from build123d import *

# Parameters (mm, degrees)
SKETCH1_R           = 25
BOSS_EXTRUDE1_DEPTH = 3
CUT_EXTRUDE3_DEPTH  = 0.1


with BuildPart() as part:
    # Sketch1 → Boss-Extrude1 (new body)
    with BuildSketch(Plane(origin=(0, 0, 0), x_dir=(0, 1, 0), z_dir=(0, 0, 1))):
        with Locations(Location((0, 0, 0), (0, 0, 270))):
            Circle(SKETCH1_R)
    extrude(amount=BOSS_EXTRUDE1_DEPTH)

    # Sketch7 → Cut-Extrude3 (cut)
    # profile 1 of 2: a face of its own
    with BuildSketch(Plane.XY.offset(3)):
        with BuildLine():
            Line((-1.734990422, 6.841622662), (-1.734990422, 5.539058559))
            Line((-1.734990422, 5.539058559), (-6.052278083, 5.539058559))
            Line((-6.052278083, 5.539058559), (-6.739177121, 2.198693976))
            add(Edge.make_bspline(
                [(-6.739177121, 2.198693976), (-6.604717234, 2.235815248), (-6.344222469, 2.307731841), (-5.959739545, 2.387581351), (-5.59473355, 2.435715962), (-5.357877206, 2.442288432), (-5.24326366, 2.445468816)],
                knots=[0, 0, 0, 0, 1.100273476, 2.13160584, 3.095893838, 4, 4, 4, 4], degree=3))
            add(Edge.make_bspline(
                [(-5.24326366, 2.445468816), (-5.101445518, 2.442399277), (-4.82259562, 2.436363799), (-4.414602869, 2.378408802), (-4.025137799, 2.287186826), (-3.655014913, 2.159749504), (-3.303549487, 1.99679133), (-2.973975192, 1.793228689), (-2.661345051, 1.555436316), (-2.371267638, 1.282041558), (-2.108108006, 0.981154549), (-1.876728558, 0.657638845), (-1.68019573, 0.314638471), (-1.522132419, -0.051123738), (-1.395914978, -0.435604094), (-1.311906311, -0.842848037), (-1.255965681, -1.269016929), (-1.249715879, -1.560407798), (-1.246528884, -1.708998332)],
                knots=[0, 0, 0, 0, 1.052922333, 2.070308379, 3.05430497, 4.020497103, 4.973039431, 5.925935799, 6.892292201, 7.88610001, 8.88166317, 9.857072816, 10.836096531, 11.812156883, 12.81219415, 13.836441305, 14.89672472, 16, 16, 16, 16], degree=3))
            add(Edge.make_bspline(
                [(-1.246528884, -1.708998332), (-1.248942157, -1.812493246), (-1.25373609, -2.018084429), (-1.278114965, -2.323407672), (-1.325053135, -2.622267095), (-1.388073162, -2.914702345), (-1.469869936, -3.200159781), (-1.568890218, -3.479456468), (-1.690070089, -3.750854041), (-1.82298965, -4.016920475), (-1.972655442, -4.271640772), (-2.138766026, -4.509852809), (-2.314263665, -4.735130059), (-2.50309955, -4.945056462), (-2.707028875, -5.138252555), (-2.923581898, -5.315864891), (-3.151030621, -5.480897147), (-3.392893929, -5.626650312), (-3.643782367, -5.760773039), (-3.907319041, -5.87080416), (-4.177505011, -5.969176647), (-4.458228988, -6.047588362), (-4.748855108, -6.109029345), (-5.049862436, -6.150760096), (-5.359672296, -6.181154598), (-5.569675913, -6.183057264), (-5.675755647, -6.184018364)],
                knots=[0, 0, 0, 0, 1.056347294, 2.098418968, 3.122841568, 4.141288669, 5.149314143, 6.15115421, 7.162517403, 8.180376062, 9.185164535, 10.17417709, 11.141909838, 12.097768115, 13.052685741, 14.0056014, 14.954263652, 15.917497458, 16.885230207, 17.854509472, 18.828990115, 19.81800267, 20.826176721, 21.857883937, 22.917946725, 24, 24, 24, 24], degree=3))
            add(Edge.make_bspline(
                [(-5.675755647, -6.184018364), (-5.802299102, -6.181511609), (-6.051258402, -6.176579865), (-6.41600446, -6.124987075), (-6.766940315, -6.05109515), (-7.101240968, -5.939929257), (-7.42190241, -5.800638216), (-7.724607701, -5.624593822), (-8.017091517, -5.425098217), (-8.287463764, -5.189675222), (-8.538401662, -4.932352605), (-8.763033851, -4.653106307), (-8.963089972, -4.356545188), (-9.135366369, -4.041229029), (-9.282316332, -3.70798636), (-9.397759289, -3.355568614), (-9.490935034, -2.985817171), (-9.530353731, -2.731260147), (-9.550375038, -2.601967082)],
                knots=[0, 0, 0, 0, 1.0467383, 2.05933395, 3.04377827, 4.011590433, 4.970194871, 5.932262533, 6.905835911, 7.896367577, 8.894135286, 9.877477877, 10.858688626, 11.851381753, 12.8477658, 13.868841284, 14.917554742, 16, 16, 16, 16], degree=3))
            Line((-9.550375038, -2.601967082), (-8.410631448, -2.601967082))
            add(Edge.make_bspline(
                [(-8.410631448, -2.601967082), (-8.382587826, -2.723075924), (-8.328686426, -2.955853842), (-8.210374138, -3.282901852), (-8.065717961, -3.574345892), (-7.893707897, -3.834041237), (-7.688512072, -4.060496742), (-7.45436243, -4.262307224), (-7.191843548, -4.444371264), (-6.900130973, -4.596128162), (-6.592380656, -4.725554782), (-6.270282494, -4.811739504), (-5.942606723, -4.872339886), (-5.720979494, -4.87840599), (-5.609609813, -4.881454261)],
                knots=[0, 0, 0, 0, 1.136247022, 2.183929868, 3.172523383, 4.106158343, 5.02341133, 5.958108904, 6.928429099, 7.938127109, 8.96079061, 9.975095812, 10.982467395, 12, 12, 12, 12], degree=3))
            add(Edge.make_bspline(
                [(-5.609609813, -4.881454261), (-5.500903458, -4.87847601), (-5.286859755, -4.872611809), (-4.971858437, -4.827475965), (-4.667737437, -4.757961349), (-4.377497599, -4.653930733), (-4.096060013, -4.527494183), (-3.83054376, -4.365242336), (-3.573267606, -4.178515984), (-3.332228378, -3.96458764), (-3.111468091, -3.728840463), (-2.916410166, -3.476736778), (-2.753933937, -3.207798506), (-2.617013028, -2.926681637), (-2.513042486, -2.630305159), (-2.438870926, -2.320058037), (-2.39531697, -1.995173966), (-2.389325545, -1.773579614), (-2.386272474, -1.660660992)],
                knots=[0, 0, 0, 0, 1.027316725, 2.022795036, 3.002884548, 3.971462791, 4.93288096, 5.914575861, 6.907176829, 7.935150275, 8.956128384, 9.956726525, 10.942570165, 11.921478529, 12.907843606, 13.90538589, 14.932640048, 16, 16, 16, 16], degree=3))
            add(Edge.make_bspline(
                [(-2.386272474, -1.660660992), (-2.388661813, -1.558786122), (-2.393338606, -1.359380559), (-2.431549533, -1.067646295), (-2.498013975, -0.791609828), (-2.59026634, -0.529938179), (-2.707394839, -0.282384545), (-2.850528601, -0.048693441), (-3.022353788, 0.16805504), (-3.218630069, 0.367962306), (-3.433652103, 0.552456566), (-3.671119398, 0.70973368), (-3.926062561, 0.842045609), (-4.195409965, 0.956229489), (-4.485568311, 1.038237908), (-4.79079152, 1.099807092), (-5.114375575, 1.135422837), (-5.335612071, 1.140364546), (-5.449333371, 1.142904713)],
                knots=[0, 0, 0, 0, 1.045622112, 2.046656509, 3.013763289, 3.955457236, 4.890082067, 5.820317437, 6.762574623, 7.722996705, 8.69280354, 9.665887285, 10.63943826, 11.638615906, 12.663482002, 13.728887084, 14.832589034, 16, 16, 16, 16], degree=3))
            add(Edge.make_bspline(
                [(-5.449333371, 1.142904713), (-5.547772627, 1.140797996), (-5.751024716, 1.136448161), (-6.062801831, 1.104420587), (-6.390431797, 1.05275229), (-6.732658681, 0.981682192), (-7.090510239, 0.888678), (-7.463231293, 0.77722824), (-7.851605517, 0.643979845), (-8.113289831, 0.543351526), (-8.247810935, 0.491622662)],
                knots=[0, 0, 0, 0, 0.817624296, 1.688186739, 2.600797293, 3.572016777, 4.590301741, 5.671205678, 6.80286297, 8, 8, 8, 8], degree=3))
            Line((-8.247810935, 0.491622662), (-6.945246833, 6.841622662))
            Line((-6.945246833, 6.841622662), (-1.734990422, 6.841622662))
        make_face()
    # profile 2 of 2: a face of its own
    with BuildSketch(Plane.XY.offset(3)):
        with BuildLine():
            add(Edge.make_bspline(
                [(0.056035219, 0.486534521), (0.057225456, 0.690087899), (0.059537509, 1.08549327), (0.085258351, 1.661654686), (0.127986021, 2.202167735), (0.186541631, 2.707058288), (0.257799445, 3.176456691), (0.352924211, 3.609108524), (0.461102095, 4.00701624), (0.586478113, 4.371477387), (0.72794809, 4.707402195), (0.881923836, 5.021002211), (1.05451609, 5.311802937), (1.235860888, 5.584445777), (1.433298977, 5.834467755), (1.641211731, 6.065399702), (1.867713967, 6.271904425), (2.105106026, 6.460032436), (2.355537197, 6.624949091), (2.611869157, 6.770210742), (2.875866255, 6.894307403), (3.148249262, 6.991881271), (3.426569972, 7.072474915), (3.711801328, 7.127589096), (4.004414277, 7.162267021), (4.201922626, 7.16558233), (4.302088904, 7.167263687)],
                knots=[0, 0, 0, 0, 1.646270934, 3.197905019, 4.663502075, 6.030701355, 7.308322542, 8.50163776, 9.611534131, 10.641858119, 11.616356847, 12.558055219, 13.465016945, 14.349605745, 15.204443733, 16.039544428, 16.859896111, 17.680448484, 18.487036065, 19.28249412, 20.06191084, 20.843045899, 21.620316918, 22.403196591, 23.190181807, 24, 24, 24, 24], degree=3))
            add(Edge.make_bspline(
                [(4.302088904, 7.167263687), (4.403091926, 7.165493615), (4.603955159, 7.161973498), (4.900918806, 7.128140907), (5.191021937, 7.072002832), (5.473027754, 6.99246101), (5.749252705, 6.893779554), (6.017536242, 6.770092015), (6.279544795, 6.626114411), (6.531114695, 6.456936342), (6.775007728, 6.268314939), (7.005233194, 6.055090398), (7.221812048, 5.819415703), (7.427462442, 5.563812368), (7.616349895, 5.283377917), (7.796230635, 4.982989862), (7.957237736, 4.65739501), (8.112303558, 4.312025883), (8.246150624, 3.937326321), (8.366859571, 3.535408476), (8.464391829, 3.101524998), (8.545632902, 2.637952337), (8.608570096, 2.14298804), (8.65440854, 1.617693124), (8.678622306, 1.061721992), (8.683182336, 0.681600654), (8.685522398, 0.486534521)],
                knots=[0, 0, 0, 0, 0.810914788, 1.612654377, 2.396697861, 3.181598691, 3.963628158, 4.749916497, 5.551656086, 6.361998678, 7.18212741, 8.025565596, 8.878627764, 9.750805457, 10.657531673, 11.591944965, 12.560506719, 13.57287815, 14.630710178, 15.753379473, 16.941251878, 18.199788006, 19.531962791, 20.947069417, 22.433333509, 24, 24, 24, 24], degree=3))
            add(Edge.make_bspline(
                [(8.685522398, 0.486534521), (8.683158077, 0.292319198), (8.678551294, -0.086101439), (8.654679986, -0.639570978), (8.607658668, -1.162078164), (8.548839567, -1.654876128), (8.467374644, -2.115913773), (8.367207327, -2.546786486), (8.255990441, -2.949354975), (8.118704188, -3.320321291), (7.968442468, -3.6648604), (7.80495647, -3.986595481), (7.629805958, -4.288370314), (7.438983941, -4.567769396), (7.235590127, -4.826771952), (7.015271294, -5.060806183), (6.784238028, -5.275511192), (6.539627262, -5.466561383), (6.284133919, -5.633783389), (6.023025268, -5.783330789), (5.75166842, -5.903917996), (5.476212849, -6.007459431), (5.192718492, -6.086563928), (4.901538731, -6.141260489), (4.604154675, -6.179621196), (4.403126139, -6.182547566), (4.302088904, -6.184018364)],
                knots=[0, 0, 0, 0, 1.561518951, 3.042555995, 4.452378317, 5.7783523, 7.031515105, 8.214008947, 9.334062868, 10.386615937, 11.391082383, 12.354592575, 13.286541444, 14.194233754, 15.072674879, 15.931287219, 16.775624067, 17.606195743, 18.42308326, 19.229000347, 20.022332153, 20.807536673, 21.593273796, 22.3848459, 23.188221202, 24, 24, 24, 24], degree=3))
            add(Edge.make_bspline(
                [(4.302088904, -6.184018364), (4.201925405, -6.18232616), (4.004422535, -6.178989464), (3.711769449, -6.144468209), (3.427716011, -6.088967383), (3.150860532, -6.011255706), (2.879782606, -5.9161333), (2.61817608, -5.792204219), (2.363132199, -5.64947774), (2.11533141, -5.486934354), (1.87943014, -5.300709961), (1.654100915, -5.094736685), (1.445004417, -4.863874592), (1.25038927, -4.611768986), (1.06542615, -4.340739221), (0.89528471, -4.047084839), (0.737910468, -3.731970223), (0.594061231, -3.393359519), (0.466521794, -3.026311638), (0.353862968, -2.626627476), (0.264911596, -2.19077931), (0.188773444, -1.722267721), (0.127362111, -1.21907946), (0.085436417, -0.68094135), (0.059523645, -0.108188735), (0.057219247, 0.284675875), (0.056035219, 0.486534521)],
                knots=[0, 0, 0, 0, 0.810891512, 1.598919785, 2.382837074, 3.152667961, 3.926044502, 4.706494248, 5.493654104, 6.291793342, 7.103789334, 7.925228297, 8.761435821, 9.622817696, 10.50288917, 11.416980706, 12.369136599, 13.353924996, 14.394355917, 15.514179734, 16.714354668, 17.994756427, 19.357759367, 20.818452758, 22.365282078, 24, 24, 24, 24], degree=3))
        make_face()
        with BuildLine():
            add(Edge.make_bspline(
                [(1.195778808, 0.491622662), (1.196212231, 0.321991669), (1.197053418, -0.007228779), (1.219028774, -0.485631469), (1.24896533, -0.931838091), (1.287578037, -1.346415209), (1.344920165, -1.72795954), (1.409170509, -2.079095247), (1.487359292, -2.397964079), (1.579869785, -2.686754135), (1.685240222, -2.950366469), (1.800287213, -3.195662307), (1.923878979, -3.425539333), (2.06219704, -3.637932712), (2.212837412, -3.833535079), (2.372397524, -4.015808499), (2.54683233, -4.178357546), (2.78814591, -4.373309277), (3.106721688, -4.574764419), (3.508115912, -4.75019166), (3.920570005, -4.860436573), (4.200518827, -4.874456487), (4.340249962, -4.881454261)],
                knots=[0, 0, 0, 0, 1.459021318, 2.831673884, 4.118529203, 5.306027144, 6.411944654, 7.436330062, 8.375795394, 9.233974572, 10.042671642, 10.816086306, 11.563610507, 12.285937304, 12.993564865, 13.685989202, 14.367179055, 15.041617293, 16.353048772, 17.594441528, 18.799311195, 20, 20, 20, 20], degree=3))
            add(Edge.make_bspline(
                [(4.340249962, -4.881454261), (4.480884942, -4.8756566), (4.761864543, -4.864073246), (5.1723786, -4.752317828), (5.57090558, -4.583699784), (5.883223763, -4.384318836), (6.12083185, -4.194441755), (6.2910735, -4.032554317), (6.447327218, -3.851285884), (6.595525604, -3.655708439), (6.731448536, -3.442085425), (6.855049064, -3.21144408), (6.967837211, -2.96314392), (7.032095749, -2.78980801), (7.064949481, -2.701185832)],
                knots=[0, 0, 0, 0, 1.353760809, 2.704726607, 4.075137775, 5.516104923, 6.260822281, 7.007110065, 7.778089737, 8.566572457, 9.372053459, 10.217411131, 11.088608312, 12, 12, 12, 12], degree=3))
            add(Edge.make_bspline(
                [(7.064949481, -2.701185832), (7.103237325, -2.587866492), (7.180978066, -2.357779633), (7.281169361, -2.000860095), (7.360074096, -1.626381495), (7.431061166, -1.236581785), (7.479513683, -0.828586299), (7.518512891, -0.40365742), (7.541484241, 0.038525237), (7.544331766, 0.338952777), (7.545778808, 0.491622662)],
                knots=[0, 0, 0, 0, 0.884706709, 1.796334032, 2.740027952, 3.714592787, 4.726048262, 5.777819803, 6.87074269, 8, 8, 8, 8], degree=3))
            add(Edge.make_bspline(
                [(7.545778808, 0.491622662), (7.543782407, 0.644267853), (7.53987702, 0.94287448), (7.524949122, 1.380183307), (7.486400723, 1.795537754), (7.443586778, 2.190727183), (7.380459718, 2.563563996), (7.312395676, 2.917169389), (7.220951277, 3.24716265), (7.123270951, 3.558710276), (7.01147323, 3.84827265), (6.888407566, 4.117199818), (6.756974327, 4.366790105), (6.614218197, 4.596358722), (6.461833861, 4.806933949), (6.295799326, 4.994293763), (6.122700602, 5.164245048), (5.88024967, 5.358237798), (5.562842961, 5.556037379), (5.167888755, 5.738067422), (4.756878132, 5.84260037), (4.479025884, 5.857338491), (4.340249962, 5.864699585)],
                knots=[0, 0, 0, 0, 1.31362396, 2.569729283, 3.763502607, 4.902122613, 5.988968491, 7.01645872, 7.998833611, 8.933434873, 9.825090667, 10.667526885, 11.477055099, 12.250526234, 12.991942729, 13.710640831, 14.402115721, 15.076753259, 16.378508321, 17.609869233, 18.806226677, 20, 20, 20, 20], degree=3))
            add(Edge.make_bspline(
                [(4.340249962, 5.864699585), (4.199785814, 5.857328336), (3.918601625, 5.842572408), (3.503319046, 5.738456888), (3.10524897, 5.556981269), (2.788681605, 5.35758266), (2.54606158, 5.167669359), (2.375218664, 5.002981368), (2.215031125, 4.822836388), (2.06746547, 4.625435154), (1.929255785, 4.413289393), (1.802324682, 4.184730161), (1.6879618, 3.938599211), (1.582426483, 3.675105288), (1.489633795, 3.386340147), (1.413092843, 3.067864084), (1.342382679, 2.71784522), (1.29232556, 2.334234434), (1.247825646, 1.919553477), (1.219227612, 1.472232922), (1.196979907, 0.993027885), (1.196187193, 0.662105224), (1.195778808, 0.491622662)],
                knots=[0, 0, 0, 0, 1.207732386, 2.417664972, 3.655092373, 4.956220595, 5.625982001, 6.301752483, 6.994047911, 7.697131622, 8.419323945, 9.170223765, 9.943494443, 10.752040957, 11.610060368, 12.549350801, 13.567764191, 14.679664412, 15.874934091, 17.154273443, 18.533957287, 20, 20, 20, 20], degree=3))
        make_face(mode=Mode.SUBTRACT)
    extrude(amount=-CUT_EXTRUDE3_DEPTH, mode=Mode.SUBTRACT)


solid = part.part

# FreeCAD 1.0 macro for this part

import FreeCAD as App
import Part
import Sketcher
Q = App.Units.Quantity

doc = App.newDocument("Part")
body = doc.addObject("PartDesign::Body", "Body")

sketch1 = body.newObject("Sketcher::SketchObject", "Sketch")
sketch1.AttachmentSupport = (doc.getObject("XY_Plane"), [""])
sketch1.MapMode = "FlatFace"
sketch1.addGeometry(Part.Circle(App.Vector(0, 0, 0), App.Vector(0, 0, 1), 25), False)
sketch1.addConstraint([
    Sketcher.Constraint("Coincident", 0, 3, -1, 1),
    Sketcher.Constraint("Diameter", 0, Q("50 mm")),
])
pad1 = body.newObject("PartDesign::Pad", "Pad")
pad1.Profile = sketch1
pad1.Length = 3

sketch2 = body.newObject("Sketcher::SketchObject", "Sketch001")
sketch2.AttachmentSupport = (doc.getObject("XY_Plane"), [""])
sketch2.MapMode = "FlatFace"
sketch2.AttachmentOffset = App.Placement(App.Vector(0, 0, 3), App.Rotation())
sketch2.addGeometry([
    Part.LineSegment(App.Vector(-1.73499, 5.539059, 0), App.Vector(-1.73499, 6.841623, 0)),
    Part.LineSegment(App.Vector(-1.73499, 6.841623, 0), App.Vector(-6.945247, 6.841623, 0)),
    Part.LineSegment(App.Vector(-6.945247, 6.841623, 0), App.Vector(-8.247811, 0.491623, 0)),
    Part.BSplineCurve([App.Vector(-5.449333, 1.142905, 0), App.Vector(-5.547773, 1.140798, 0), App.Vector(-5.751025, 1.136448, 0), App.Vector(-6.062802, 1.104421, 0), App.Vector(-6.390432, 1.052752, 0), App.Vector(-6.732659, 0.981682, 0), App.Vector(-7.09051, 0.888678, 0), App.Vector(-7.463231, 0.777228, 0), App.Vector(-7.851606, 0.64398, 0), App.Vector(-8.11329, 0.543352, 0), App.Vector(-8.247811, 0.491623, 0)], [4, 1, 1, 1, 1, 1, 1, 1, 4], [0, 0.817624296, 1.688186739, 2.600797293, 3.572016777, 4.590301741, 5.671205678, 6.80286297, 8], False, 3, [1, 1, 1, 1, 1, 1, 1, 1, 1, 1, 1], False),
    Part.BSplineCurve([App.Vector(-2.386272, -1.660661, 0), App.Vector(-2.388662, -1.558786, 0), App.Vector(-2.393339, -1.359381, 0), App.Vector(-2.43155, -1.067646, 0), App.Vector(-2.498014, -0.79161, 0), App.Vector(-2.590266, -0.529938, 0), App.Vector(-2.707395, -0.282385, 0), App.Vector(-2.850529, -0.048693, 0), App.Vector(-3.022354, 0.168055, 0), App.Vector(-3.21863, 0.367962, 0), App.Vector(-3.433652, 0.552457, 0), App.Vector(-3.671119, 0.709734, 0), App.Vector(-3.926063, 0.842046, 0), App.Vector(-4.19541, 0.956229, 0), App.Vector(-4.485568, 1.038238, 0), App.Vector(-4.790792, 1.099807, 0), App.Vector(-5.114376, 1.135423, 0), App.Vector(-5.335612, 1.140365, 0), App.Vector(-5.449333, 1.142905, 0)], [4, 1, 1, 1, 1, 1, 1, 1, 1, 1, 1, 1, 1, 1, 1, 1, 4], [0, 1.045622112, 2.046656509, 3.013763289, 3.955457236, 4.890082067, 5.820317437, 6.762574623, 7.722996705, 8.69280354, 9.665887285, 10.63943826, 11.638615906, 12.663482002, 13.728887084, 14.832589034, 16], False, 3, [1, 1, 1, 1, 1, 1, 1, 1, 1, 1, 1, 1, 1, 1, 1, 1, 1, 1, 1], False),
    Part.BSplineCurve([App.Vector(-5.60961, -4.881454, 0), App.Vector(-5.500903, -4.878476, 0), App.Vector(-5.28686, -4.872612, 0), App.Vector(-4.971858, -4.827476, 0), App.Vector(-4.667737, -4.757961, 0), App.Vector(-4.377498, -4.653931, 0), App.Vector(-4.09606, -4.527494, 0), App.Vector(-3.830544, -4.365242, 0), App.Vector(-3.573268, -4.178516, 0), App.Vector(-3.332228, -3.964588, 0), App.Vector(-3.111468, -3.72884, 0), App.Vector(-2.91641, -3.476737, 0), App.Vector(-2.753934, -3.207799, 0), App.Vector(-2.617013, -2.926682, 0), App.Vector(-2.513042, -2.630305, 0), App.Vector(-2.438871, -2.320058, 0), App.Vector(-2.395317, -1.995174, 0), App.Vector(-2.389326, -1.77358, 0), App.Vector(-2.386272, -1.660661, 0)], [4, 1, 1, 1, 1, 1, 1, 1, 1, 1, 1, 1, 1, 1, 1, 1, 4], [0, 1.027316725, 2.022795036, 3.002884548, 3.971462791, 4.93288096, 5.914575861, 6.907176829, 7.935150275, 8.956128384, 9.956726525, 10.942570165, 11.921478529, 12.907843606, 13.90538589, 14.932640048, 16], False, 3, [1, 1, 1, 1, 1, 1, 1, 1, 1, 1, 1, 1, 1, 1, 1, 1, 1, 1, 1], False),
    Part.BSplineCurve([App.Vector(-8.410631, -2.601967, 0), App.Vector(-8.382588, -2.723076, 0), App.Vector(-8.328686, -2.955854, 0), App.Vector(-8.210374, -3.282902, 0), App.Vector(-8.065718, -3.574346, 0), App.Vector(-7.893708, -3.834041, 0), App.Vector(-7.688512, -4.060497, 0), App.Vector(-7.454362, -4.262307, 0), App.Vector(-7.191844, -4.444371, 0), App.Vector(-6.900131, -4.596128, 0), App.Vector(-6.592381, -4.725555, 0), App.Vector(-6.270282, -4.81174, 0), App.Vector(-5.942607, -4.87234, 0), App.Vector(-5.720979, -4.878406, 0), App.Vector(-5.60961, -4.881454, 0)], [4, 1, 1, 1, 1, 1, 1, 1, 1, 1, 1, 1, 4], [0, 1.136247022, 2.183929868, 3.172523383, 4.106158343, 5.02341133, 5.958108904, 6.928429099, 7.938127109, 8.96079061, 9.975095812, 10.982467395, 12], False, 3, [1, 1, 1, 1, 1, 1, 1, 1, 1, 1, 1, 1, 1, 1, 1], False),
    Part.LineSegment(App.Vector(-8.410631, -2.601967, 0), App.Vector(-9.550375, -2.601967, 0)),
    Part.BSplineCurve([App.Vector(-5.675756, -6.184018, 0), App.Vector(-5.802299, -6.181512, 0), App.Vector(-6.051258, -6.17658, 0), App.Vector(-6.416004, -6.124987, 0), App.Vector(-6.76694, -6.051095, 0), App.Vector(-7.101241, -5.939929, 0), App.Vector(-7.421902, -5.800638, 0), App.Vector(-7.724608, -5.624594, 0), App.Vector(-8.017092, -5.425098, 0), App.Vector(-8.287464, -5.189675, 0), App.Vector(-8.538402, -4.932353, 0), App.Vector(-8.763034, -4.653106, 0), App.Vector(-8.96309, -4.356545, 0), App.Vector(-9.135366, -4.041229, 0), App.Vector(-9.282316, -3.707986, 0), App.Vector(-9.397759, -3.355569, 0), App.Vector(-9.490935, -2.985817, 0), App.Vector(-9.530354, -2.73126, 0), App.Vector(-9.550375, -2.601967, 0)], [4, 1, 1, 1, 1, 1, 1, 1, 1, 1, 1, 1, 1, 1, 1, 1, 4], [0, 1.0467383, 2.05933395, 3.04377827, 4.011590433, 4.970194871, 5.932262533, 6.905835911, 7.896367577, 8.894135286, 9.877477877, 10.858688626, 11.851381753, 12.8477658, 13.868841284, 14.917554742, 16], False, 3, [1, 1, 1, 1, 1, 1, 1, 1, 1, 1, 1, 1, 1, 1, 1, 1, 1, 1, 1], False),
    Part.BSplineCurve([App.Vector(-1.246529, -1.708998, 0), App.Vector(-1.248942, -1.812493, 0), App.Vector(-1.253736, -2.018084, 0), App.Vector(-1.278115, -2.323408, 0), App.Vector(-1.325053, -2.622267, 0), App.Vector(-1.388073, -2.914702, 0), App.Vector(-1.46987, -3.20016, 0), App.Vector(-1.56889, -3.479456, 0), App.Vector(-1.69007, -3.750854, 0), App.Vector(-1.82299, -4.01692, 0), App.Vector(-1.972655, -4.271641, 0), App.Vector(-2.138766, -4.509853, 0), App.Vector(-2.314264, -4.73513, 0), App.Vector(-2.5031, -4.945056, 0), App.Vector(-2.707029, -5.138253, 0), App.Vector(-2.923582, -5.315865, 0), App.Vector(-3.151031, -5.480897, 0), App.Vector(-3.392894, -5.62665, 0), App.Vector(-3.643782, -5.760773, 0), App.Vector(-3.907319, -5.870804, 0), App.Vector(-4.177505, -5.969177, 0), App.Vector(-4.458229, -6.047588, 0), App.Vector(-4.748855, -6.109029, 0), App.Vector(-5.049862, -6.15076, 0), App.Vector(-5.359672, -6.181155, 0), App.Vector(-5.569676, -6.183057, 0), App.Vector(-5.675756, -6.184018, 0)], [4, 1, 1, 1, 1, 1, 1, 1, 1, 1, 1, 1, 1, 1, 1, 1, 1, 1, 1, 1, 1, 1, 1, 1, 4], [0, 1.056347294, 2.098418968, 3.122841568, 4.141288669, 5.149314143, 6.15115421, 7.162517403, 8.180376062, 9.185164535, 10.17417709, 11.141909838, 12.097768115, 13.052685741, 14.0056014, 14.954263652, 15.917497458, 16.885230207, 17.854509472, 18.828990115, 19.81800267, 20.826176721, 21.857883937, 22.917946725, 24], False, 3, [1, 1, 1, 1, 1, 1, 1, 1, 1, 1, 1, 1, 1, 1, 1, 1, 1, 1, 1, 1, 1, 1, 1, 1, 1, 1, 1], False),
    Part.BSplineCurve([App.Vector(-5.243264, 2.445469, 0), App.Vector(-5.101446, 2.442399, 0), App.Vector(-4.822596, 2.436364, 0), App.Vector(-4.414603, 2.378409, 0), App.Vector(-4.025138, 2.287187, 0), App.Vector(-3.655015, 2.15975, 0), App.Vector(-3.303549, 1.996791, 0), App.Vector(-2.973975, 1.793229, 0), App.Vector(-2.661345, 1.555436, 0), App.Vector(-2.371268, 1.282042, 0), App.Vector(-2.108108, 0.981155, 0), App.Vector(-1.876729, 0.657639, 0), App.Vector(-1.680196, 0.314638, 0), App.Vector(-1.522132, -0.051124, 0), App.Vector(-1.395915, -0.435604, 0), App.Vector(-1.311906, -0.842848, 0), App.Vector(-1.255966, -1.269017, 0), App.Vector(-1.249716, -1.560408, 0), App.Vector(-1.246529, -1.708998, 0)], [4, 1, 1, 1, 1, 1, 1, 1, 1, 1, 1, 1, 1, 1, 1, 1, 4], [0, 1.052922333, 2.070308379, 3.05430497, 4.020497103, 4.973039431, 5.925935799, 6.892292201, 7.88610001, 8.88166317, 9.857072816, 10.836096531, 11.812156883, 12.81219415, 13.836441305, 14.89672472, 16], False, 3, [1, 1, 1, 1, 1, 1, 1, 1, 1, 1, 1, 1, 1, 1, 1, 1, 1, 1, 1], False),
    Part.BSplineCurve([App.Vector(-6.739177, 2.198694, 0), App.Vector(-6.604717, 2.235815, 0), App.Vector(-6.344222, 2.307732, 0), App.Vector(-5.95974, 2.387581, 0), App.Vector(-5.594734, 2.435716, 0), App.Vector(-5.357877, 2.442288, 0), App.Vector(-5.243264, 2.445469, 0)], [4, 1, 1, 1, 4], [0, 1.100273476, 2.13160584, 3.095893838, 4], False, 3, [1, 1, 1, 1, 1, 1, 1], False),
    Part.LineSegment(App.Vector(-6.739177, 2.198694, 0), App.Vector(-6.052278, 5.539059, 0)),
    Part.LineSegment(App.Vector(-6.052278, 5.539059, 0), App.Vector(-1.73499, 5.539059, 0)),
    Part.BSplineCurve([App.Vector(0.056035, 0.486535, 0), App.Vector(0.057225, 0.690088, 0), App.Vector(0.059538, 1.085493, 0), App.Vector(0.085258, 1.661655, 0), App.Vector(0.127986, 2.202168, 0), App.Vector(0.186542, 2.707058, 0), App.Vector(0.257799, 3.176457, 0), App.Vector(0.352924, 3.609109, 0), App.Vector(0.461102, 4.007016, 0), App.Vector(0.586478, 4.371477, 0), App.Vector(0.727948, 4.707402, 0), App.Vector(0.881924, 5.021002, 0), App.Vector(1.054516, 5.311803, 0), App.Vector(1.235861, 5.584446, 0), App.Vector(1.433299, 5.834468, 0), App.Vector(1.641212, 6.0654, 0), App.Vector(1.867714, 6.271904, 0), App.Vector(2.105106, 6.460032, 0), App.Vector(2.355537, 6.624949, 0), App.Vector(2.611869, 6.770211, 0), App.Vector(2.875866, 6.894307, 0), App.Vector(3.148249, 6.991881, 0), App.Vector(3.42657, 7.072475, 0), App.Vector(3.711801, 7.127589, 0), App.Vector(4.004414, 7.162267, 0), App.Vector(4.201923, 7.165582, 0), App.Vector(4.302089, 7.167264, 0)], [4, 1, 1, 1, 1, 1, 1, 1, 1, 1, 1, 1, 1, 1, 1, 1, 1, 1, 1, 1, 1, 1, 1, 1, 4], [0, 1.646270934, 3.197905019, 4.663502075, 6.030701355, 7.308322542, 8.50163776, 9.611534131, 10.641858119, 11.616356847, 12.558055219, 13.465016945, 14.349605745, 15.204443733, 16.039544428, 16.859896111, 17.680448484, 18.487036065, 19.28249412, 20.06191084, 20.843045899, 21.620316918, 22.403196591, 23.190181807, 24], False, 3, [1, 1, 1, 1, 1, 1, 1, 1, 1, 1, 1, 1, 1, 1, 1, 1, 1, 1, 1, 1, 1, 1, 1, 1, 1, 1, 1], False),
    Part.BSplineCurve([App.Vector(4.302089, -6.184018, 0), App.Vector(4.201925, -6.182326, 0), App.Vector(4.004423, -6.178989, 0), App.Vector(3.711769, -6.144468, 0), App.Vector(3.427716, -6.088967, 0), App.Vector(3.150861, -6.011256, 0), App.Vector(2.879783, -5.916133, 0), App.Vector(2.618176, -5.792204, 0), App.Vector(2.363132, -5.649478, 0), App.Vector(2.115331, -5.486934, 0), App.Vector(1.87943, -5.30071, 0), App.Vector(1.654101, -5.094737, 0), App.Vector(1.445004, -4.863875, 0), App.Vector(1.250389, -4.611769, 0), App.Vector(1.065426, -4.340739, 0), App.Vector(0.895285, -4.047085, 0), App.Vector(0.73791, -3.73197, 0), App.Vector(0.594061, -3.39336, 0), App.Vector(0.466522, -3.026312, 0), App.Vector(0.353863, -2.626627, 0), App.Vector(0.264912, -2.190779, 0), App.Vector(0.188773, -1.722268, 0), App.Vector(0.127362, -1.219079, 0), App.Vector(0.085436, -0.680941, 0), App.Vector(0.059524, -0.108189, 0), App.Vector(0.057219, 0.284676, 0), App.Vector(0.056035, 0.486535, 0)], [4, 1, 1, 1, 1, 1, 1, 1, 1, 1, 1, 1, 1, 1, 1, 1, 1, 1, 1, 1, 1, 1, 1, 1, 4], [0, 0.810891512, 1.598919785, 2.382837074, 3.152667961, 3.926044502, 4.706494248, 5.493654104, 6.291793342, 7.103789334, 7.925228297, 8.761435821, 9.622817696, 10.50288917, 11.416980706, 12.369136599, 13.353924996, 14.394355917, 15.514179734, 16.714354668, 17.994756427, 19.357759367, 20.818452758, 22.365282078, 24], False, 3, [1, 1, 1, 1, 1, 1, 1, 1, 1, 1, 1, 1, 1, 1, 1, 1, 1, 1, 1, 1, 1, 1, 1, 1, 1, 1, 1], False),
    Part.BSplineCurve([App.Vector(8.685522, 0.486535, 0), App.Vector(8.683158, 0.292319, 0), App.Vector(8.678551, -0.086101, 0), App.Vector(8.65468, -0.639571, 0), App.Vector(8.607659, -1.162078, 0), App.Vector(8.54884, -1.654876, 0), App.Vector(8.467375, -2.115914, 0), App.Vector(8.367207, -2.546786, 0), App.Vector(8.25599, -2.949355, 0), App.Vector(8.118704, -3.320321, 0), App.Vector(7.968442, -3.66486, 0), App.Vector(7.804956, -3.986595, 0), App.Vector(7.629806, -4.28837, 0), App.Vector(7.438984, -4.567769, 0), App.Vector(7.23559, -4.826772, 0), App.Vector(7.015271, -5.060806, 0), App.Vector(6.784238, -5.275511, 0), App.Vector(6.539627, -5.466561, 0), App.Vector(6.284134, -5.633783, 0), App.Vector(6.023025, -5.783331, 0), App.Vector(5.751668, -5.903918, 0), App.Vector(5.476213, -6.007459, 0), App.Vector(5.192718, -6.086564, 0), App.Vector(4.901539, -6.14126, 0), App.Vector(4.604155, -6.179621, 0), App.Vector(4.403126, -6.182548, 0), App.Vector(4.302089, -6.184018, 0)], [4, 1, 1, 1, 1, 1, 1, 1, 1, 1, 1, 1, 1, 1, 1, 1, 1, 1, 1, 1, 1, 1, 1, 1, 4], [0, 1.561518951, 3.042555995, 4.452378317, 5.7783523, 7.031515105, 8.214008947, 9.334062868, 10.386615937, 11.391082383, 12.354592575, 13.286541444, 14.194233754, 15.072674879, 15.931287219, 16.775624067, 17.606195743, 18.42308326, 19.229000347, 20.022332153, 20.807536673, 21.593273796, 22.3848459, 23.188221202, 24], False, 3, [1, 1, 1, 1, 1, 1, 1, 1, 1, 1, 1, 1, 1, 1, 1, 1, 1, 1, 1, 1, 1, 1, 1, 1, 1, 1, 1], False),
    Part.BSplineCurve([App.Vector(4.302089, 7.167264, 0), App.Vector(4.403092, 7.165494, 0), App.Vector(4.603955, 7.161973, 0), App.Vector(4.900919, 7.128141, 0), App.Vector(5.191022, 7.072003, 0), App.Vector(5.473028, 6.992461, 0), App.Vector(5.749253, 6.89378, 0), App.Vector(6.017536, 6.770092, 0), App.Vector(6.279545, 6.626114, 0), App.Vector(6.531115, 6.456936, 0), App.Vector(6.775008, 6.268315, 0), App.Vector(7.005233, 6.05509, 0), App.Vector(7.221812, 5.819416, 0), App.Vector(7.427462, 5.563812, 0), App.Vector(7.61635, 5.283378, 0), App.Vector(7.796231, 4.98299, 0), App.Vector(7.957238, 4.657395, 0), App.Vector(8.112304, 4.312026, 0), App.Vector(8.246151, 3.937326, 0), App.Vector(8.36686, 3.535408, 0), App.Vector(8.464392, 3.101525, 0), App.Vector(8.545633, 2.637952, 0), App.Vector(8.60857, 2.142988, 0), App.Vector(8.654409, 1.617693, 0), App.Vector(8.678622, 1.061722, 0), App.Vector(8.683182, 0.681601, 0), App.Vector(8.685522, 0.486535, 0)], [4, 1, 1, 1, 1, 1, 1, 1, 1, 1, 1, 1, 1, 1, 1, 1, 1, 1, 1, 1, 1, 1, 1, 1, 4], [0, 0.810914788, 1.612654377, 2.396697861, 3.181598691, 3.963628158, 4.749916497, 5.551656086, 6.361998678, 7.18212741, 8.025565596, 8.878627764, 9.750805457, 10.657531673, 11.591944965, 12.560506719, 13.57287815, 14.630710178, 15.753379473, 16.941251878, 18.199788006, 19.531962791, 20.947069417, 22.433333509, 24], False, 3, [1, 1, 1, 1, 1, 1, 1, 1, 1, 1, 1, 1, 1, 1, 1, 1, 1, 1, 1, 1, 1, 1, 1, 1, 1, 1, 1], False),
    Part.BSplineCurve([App.Vector(4.34025, 5.8647, 0), App.Vector(4.199786, 5.857328, 0), App.Vector(3.918602, 5.842572, 0), App.Vector(3.503319, 5.738457, 0), App.Vector(3.105249, 5.556981, 0), App.Vector(2.788682, 5.357583, 0), App.Vector(2.546062, 5.167669, 0), App.Vector(2.375219, 5.002981, 0), App.Vector(2.215031, 4.822836, 0), App.Vector(2.067465, 4.625435, 0), App.Vector(1.929256, 4.413289, 0), App.Vector(1.802325, 4.18473, 0), App.Vector(1.687962, 3.938599, 0), App.Vector(1.582426, 3.675105, 0), App.Vector(1.489634, 3.38634, 0), App.Vector(1.413093, 3.067864, 0), App.Vector(1.342383, 2.717845, 0), App.Vector(1.292326, 2.334234, 0), App.Vector(1.247826, 1.919553, 0), App.Vector(1.219228, 1.472233, 0), App.Vector(1.19698, 0.993028, 0), App.Vector(1.196187, 0.662105, 0), App.Vector(1.195779, 0.491623, 0)], [4, 1, 1, 1, 1, 1, 1, 1, 1, 1, 1, 1, 1, 1, 1, 1, 1, 1, 1, 1, 4], [0, 1.207732386, 2.417664972, 3.655092373, 4.956220595, 5.625982001, 6.301752483, 6.994047911, 7.697131622, 8.419323945, 9.170223765, 9.943494443, 10.752040957, 11.610060368, 12.549350801, 13.567764191, 14.679664412, 15.874934091, 17.154273443, 18.533957287, 20], False, 3, [1, 1, 1, 1, 1, 1, 1, 1, 1, 1, 1, 1, 1, 1, 1, 1, 1, 1, 1, 1, 1, 1, 1], False),
    Part.BSplineCurve([App.Vector(7.545779, 0.491623, 0), App.Vector(7.543782, 0.644268, 0), App.Vector(7.539877, 0.942874, 0), App.Vector(7.524949, 1.380183, 0), App.Vector(7.486401, 1.795538, 0), App.Vector(7.443587, 2.190727, 0), App.Vector(7.38046, 2.563564, 0), App.Vector(7.312396, 2.917169, 0), App.Vector(7.220951, 3.247163, 0), App.Vector(7.123271, 3.55871, 0), App.Vector(7.011473, 3.848273, 0), App.Vector(6.888408, 4.1172, 0), App.Vector(6.756974, 4.36679, 0), App.Vector(6.614218, 4.596359, 0), App.Vector(6.461834, 4.806934, 0), App.Vector(6.295799, 4.994294, 0), App.Vector(6.122701, 5.164245, 0), App.Vector(5.88025, 5.358238, 0), App.Vector(5.562843, 5.556037, 0), App.Vector(5.167889, 5.738067, 0), App.Vector(4.756878, 5.8426, 0), App.Vector(4.479026, 5.857338, 0), App.Vector(4.34025, 5.8647, 0)], [4, 1, 1, 1, 1, 1, 1, 1, 1, 1, 1, 1, 1, 1, 1, 1, 1, 1, 1, 1, 4], [0, 1.31362396, 2.569729283, 3.763502607, 4.902122613, 5.988968491, 7.01645872, 7.998833611, 8.933434873, 9.825090667, 10.667526885, 11.477055099, 12.250526234, 12.991942729, 13.710640831, 14.402115721, 15.076753259, 16.378508321, 17.609869233, 18.806226677, 20], False, 3, [1, 1, 1, 1, 1, 1, 1, 1, 1, 1, 1, 1, 1, 1, 1, 1, 1, 1, 1, 1, 1, 1, 1], False),
    Part.BSplineCurve([App.Vector(7.064949, -2.701186, 0), App.Vector(7.103237, -2.587866, 0), App.Vector(7.180978, -2.35778, 0), App.Vector(7.281169, -2.00086, 0), App.Vector(7.360074, -1.626381, 0), App.Vector(7.431061, -1.236582, 0), App.Vector(7.479514, -0.828586, 0), App.Vector(7.518513, -0.403657, 0), App.Vector(7.541484, 0.038525, 0), App.Vector(7.544332, 0.338953, 0), App.Vector(7.545779, 0.491623, 0)], [4, 1, 1, 1, 1, 1, 1, 1, 4], [0, 0.884706709, 1.796334032, 2.740027952, 3.714592787, 4.726048262, 5.777819803, 6.87074269, 8], False, 3, [1, 1, 1, 1, 1, 1, 1, 1, 1, 1, 1], False),
    Part.BSplineCurve([App.Vector(4.34025, -4.881454, 0), App.Vector(4.480885, -4.875657, 0), App.Vector(4.761865, -4.864073, 0), App.Vector(5.172379, -4.752318, 0), App.Vector(5.570906, -4.5837, 0), App.Vector(5.883224, -4.384319, 0), App.Vector(6.120832, -4.194442, 0), App.Vector(6.291074, -4.032554, 0), App.Vector(6.447327, -3.851286, 0), App.Vector(6.595526, -3.655708, 0), App.Vector(6.731449, -3.442085, 0), App.Vector(6.855049, -3.211444, 0), App.Vector(6.967837, -2.963144, 0), App.Vector(7.032096, -2.789808, 0), App.Vector(7.064949, -2.701186, 0)], [4, 1, 1, 1, 1, 1, 1, 1, 1, 1, 1, 1, 4], [0, 1.353760809, 2.704726607, 4.075137775, 5.516104923, 6.260822281, 7.007110065, 7.778089737, 8.566572457, 9.372053459, 10.217411131, 11.088608312, 12], False, 3, [1, 1, 1, 1, 1, 1, 1, 1, 1, 1, 1, 1, 1, 1, 1], False),
    Part.BSplineCurve([App.Vector(1.195779, 0.491623, 0), App.Vector(1.196212, 0.321992, 0), App.Vector(1.197053, -0.007229, 0), App.Vector(1.219029, -0.485631, 0), App.Vector(1.248965, -0.931838, 0), App.Vector(1.287578, -1.346415, 0), App.Vector(1.34492, -1.72796, 0), App.Vector(1.409171, -2.079095, 0), App.Vector(1.487359, -2.397964, 0), App.Vector(1.57987, -2.686754, 0), App.Vector(1.68524, -2.950366, 0), App.Vector(1.800287, -3.195662, 0), App.Vector(1.923879, -3.425539, 0), App.Vector(2.062197, -3.637933, 0), App.Vector(2.212837, -3.833535, 0), App.Vector(2.372398, -4.015808, 0), App.Vector(2.546832, -4.178358, 0), App.Vector(2.788146, -4.373309, 0), App.Vector(3.106722, -4.574764, 0), App.Vector(3.508116, -4.750192, 0), App.Vector(3.92057, -4.860437, 0), App.Vector(4.200519, -4.874456, 0), App.Vector(4.34025, -4.881454, 0)], [4, 1, 1, 1, 1, 1, 1, 1, 1, 1, 1, 1, 1, 1, 1, 1, 1, 1, 1, 1, 4], [0, 1.459021318, 2.831673884, 4.118529203, 5.306027144, 6.411944654, 7.436330062, 8.375795394, 9.233974572, 10.042671642, 10.816086306, 11.563610507, 12.285937304, 12.993564865, 13.685989202, 14.367179055, 15.041617293, 16.353048772, 17.594441528, 18.799311195, 20], False, 3, [1, 1, 1, 1, 1, 1, 1, 1, 1, 1, 1, 1, 1, 1, 1, 1, 1, 1, 1, 1, 1, 1, 1], False),
], False)
sketch2.addConstraint([
    Sketcher.Constraint("Block", 3),
    Sketcher.Constraint("Block", 4),
    Sketcher.Constraint("Block", 5),
    Sketcher.Constraint("Block", 6),
    Sketcher.Constraint("Block", 8),
    Sketcher.Constraint("Block", 9),
    Sketcher.Constraint("Block", 10),
    Sketcher.Constraint("Block", 11),
    Sketcher.Constraint("Block", 14),
    Sketcher.Constraint("Block", 15),
    Sketcher.Constraint("Block", 16),
    Sketcher.Constraint("Block", 17),
    Sketcher.Constraint("Block", 18),
    Sketcher.Constraint("Block", 19),
    Sketcher.Constraint("Block", 20),
    Sketcher.Constraint("Block", 21),
    Sketcher.Constraint("Block", 22),
    Sketcher.Constraint("Coincident", 0, 2, 1, 1),
    Sketcher.Constraint("Coincident", 1, 2, 2, 1),
    Sketcher.Constraint("Coincident", 2, 2, 3, 2),
    Sketcher.Constraint("Coincident", 6, 1, 7, 1),
    Sketcher.Constraint("Coincident", 7, 2, 8, 2),
    Sketcher.Constraint("Coincident", 11, 1, 12, 1),
    Sketcher.Constraint("Coincident", 12, 2, 13, 1),
    Sketcher.Constraint("Coincident", 13, 2, 0, 1),
    Sketcher.Constraint("Vertical", 0),
    Sketcher.Constraint("Horizontal", 1),
    Sketcher.Constraint("Horizontal", 13),
    Sketcher.Constraint("DistanceY", 2, 2, 1, 2, Q("6.35 mm")),
    Sketcher.Constraint("Distance", 2, Q("6.48222 mm")),
    Sketcher.Constraint("Distance", 12, Q("3.410259 mm")),
    Sketcher.Constraint("DistanceX", 1, 2, 1, 1, Q("5.210256 mm")),
    Sketcher.Constraint("DistanceX", 13, 1, 13, 2, Q("4.317288 mm")),
])
pocket1 = body.newObject("PartDesign::Pocket", "Pocket")
pocket1.Profile = sketch2
pocket1.Length = 0.1

doc.recompute()
